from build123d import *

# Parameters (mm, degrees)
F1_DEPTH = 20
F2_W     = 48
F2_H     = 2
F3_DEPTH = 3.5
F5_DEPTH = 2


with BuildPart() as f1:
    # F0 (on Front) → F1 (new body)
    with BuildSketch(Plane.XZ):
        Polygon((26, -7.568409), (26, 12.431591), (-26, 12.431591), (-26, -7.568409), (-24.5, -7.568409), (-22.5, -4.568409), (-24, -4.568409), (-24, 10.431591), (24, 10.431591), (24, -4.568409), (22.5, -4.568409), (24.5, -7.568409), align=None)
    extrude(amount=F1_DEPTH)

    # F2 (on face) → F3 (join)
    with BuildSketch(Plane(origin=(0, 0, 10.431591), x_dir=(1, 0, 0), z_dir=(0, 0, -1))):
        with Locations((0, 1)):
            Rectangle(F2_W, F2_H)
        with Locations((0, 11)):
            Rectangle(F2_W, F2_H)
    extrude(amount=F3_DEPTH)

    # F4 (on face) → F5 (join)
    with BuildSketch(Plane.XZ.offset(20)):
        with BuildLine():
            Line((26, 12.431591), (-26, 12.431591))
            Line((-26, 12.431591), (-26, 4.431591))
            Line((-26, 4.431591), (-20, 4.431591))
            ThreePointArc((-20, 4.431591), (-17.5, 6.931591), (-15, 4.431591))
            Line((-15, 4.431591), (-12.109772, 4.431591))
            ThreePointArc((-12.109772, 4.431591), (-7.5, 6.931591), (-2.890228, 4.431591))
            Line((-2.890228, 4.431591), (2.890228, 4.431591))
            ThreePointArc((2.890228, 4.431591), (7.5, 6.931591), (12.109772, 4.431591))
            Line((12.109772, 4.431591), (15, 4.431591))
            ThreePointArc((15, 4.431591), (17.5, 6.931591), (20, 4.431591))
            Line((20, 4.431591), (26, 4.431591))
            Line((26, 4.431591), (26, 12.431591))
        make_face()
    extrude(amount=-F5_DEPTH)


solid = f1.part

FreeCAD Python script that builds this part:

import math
import FreeCAD as App
import Part
import Sketcher
from FreeCAD import Vector
Q = App.Units.Quantity


def add_polygon(sketch, points):
    """Adds a closed chain of lines whose ends are joined by coincident constraints."""
    first, n = sketch.GeometryCount, len(points)
    for a, b in zip(points, points[1:] + points[:1]):
        sketch.addGeometry(Part.LineSegment(App.Vector(*a, 0), App.Vector(*b, 0)), False)
    for i in range(n):
        sketch.addConstraint(Sketcher.Constraint("Coincident", first + i, 2, first + (i + 1) % n, 1))

doc = App.newDocument("Part")
body = doc.addObject("PartDesign::Body", "Body")

# Sketch on XZ plane
sketch1 = body.newObject("Sketcher::SketchObject", "Sketch")
sketch1.AttachmentSupport = (doc.getObject("XZ_Plane"), [""])
sketch1.MapMode = "FlatFace"
add_polygon(sketch1, [(26, -7.6), (26, 12.4), (-26, 12.4), (-26, -7.6), (-24.5, -7.6), (-22.5, -4.6), (-24, -4.6), (-24, 10.4), (24, 10.4), (24, -4.6), (22.5, -4.6), (24.5, -7.6)])  # lines 0-11
sketch1.addConstraint([
    Sketcher.Constraint("Vertical", 0),
    Sketcher.Constraint("Horizontal", 1),
    Sketcher.Constraint("Vertical", 2),
    Sketcher.Constraint("Horizontal", 3),
    Sketcher.Constraint("Horizontal", 5),
    Sketcher.Constraint("Vertical", 6),
    Sketcher.Constraint("Horizontal", 7),
    Sketcher.Constraint("Vertical", 8),
    Sketcher.Constraint("Horizontal", 9),
    Sketcher.Constraint("Horizontal", 11),
    Sketcher.Constraint("Symmetric", 5, 2, 8, 2, -2),
    Sketcher.Constraint("Symmetric", 3, 2, 10, 2, -2),
    Sketcher.Constraint("Equal", 3, 5),
    Sketcher.Constraint("Equal", 5, 9),
    Sketcher.Constraint("Equal", 9, 11),
    Sketcher.Constraint("DistanceX", 1, 2, 1, 1, Q("52 mm")),
    Sketcher.Constraint("DistanceX", 7, 1, 7, 2, Q("48 mm")),
    Sketcher.Constraint("DistanceY", 0, 1, 0, 2, Q("20 mm")),
    Sketcher.Constraint("DistanceY", 6, 1, 6, 2, Q("15 mm")),
    Sketcher.Constraint("DistanceX", 3, 1, 3, 2, Q("1.5 mm")),
    Sketcher.Constraint("DistanceY", 3, 2, 4, 2, Q("3 mm")),
    Sketcher.Constraint("DistanceY", -1, 1, 0, 2, Q("12.431591 mm")),
])
pad1 = body.newObject("PartDesign::Pad", "Pad")
pad1.Profile = sketch1
pad1.Length = 20

# Sketch on XY plane
sketch2 = body.newObject("Sketcher::SketchObject", "Sketch001")
sketch2.AttachmentSupport = (doc.getObject("XY_Plane"), [""])
sketch2.MapMode = "FlatFace"
sketch2.AttachmentOffset = App.Placement(Vector(0, 0, 10.431591), App.Rotation())
add_polygon(sketch2, [(-24, -2), (-24, 0), (24, 0), (24, -2)])  # lines 0-3
add_polygon(sketch2, [(-24, -12), (-24, -10), (24, -10), (24, -12)])  # lines 4-7
sketch2.addConstraint([
    Sketcher.Constraint("Vertical", 0),
    Sketcher.Constraint("Horizontal", 1),
    Sketcher.Constraint("Vertical", 2),
    Sketcher.Constraint("Horizontal", 3),
    Sketcher.Constraint("Vertical", 4),
    Sketcher.Constraint("Horizontal", 5),
    Sketcher.Constraint("Vertical", 6),
    Sketcher.Constraint("Horizontal", 7),
    Sketcher.Constraint("Symmetric", 0, 2, 1, 2, -1, 1),
    Sketcher.Constraint("Vertical", 3, 2, 4, 2),
    Sketcher.Constraint("Vertical", 2, 2, 5, 2),
    Sketcher.Constraint("Equal", 2, 4),
    Sketcher.Constraint("DistanceX", 1, 1, 1, 2, Q("48 mm")),
    Sketcher.Constraint("DistanceY", 0, 1, 0, 2, Q("2 mm")),
    Sketcher.Constraint("DistanceY", 4, 2, -1, 1, Q("10 mm")),
])
pad2 = body.newObject("PartDesign::Pad", "Pad001")
pad2.Profile = sketch2
pad2.Length = 3.5
pad2.Reversed = True

# Sketch on XZ plane
sketch3 = body.newObject("Sketcher::SketchObject", "Sketch002")
sketch3.AttachmentSupport = (doc.getObject("XZ_Plane"), [""])
sketch3.MapMode = "FlatFace"
sketch3.AttachmentOffset = App.Placement(Vector(0, 0, 20), App.Rotation())
sketch3.addGeometry([
    Part.LineSegment(Vector(26, 12.4, 0), Vector(-26, 12.4, 0)),  # 0
    Part.LineSegment(Vector(-26, 12.4, 0), Vector(-26, 4.4, 0)),  # 1
    Part.LineSegment(Vector(-26, 4.4, 0), Vector(-20, 4.4, 0)),  # 2
    Part.ArcOfCircle(Part.Circle(Vector(-17.5, 4.4, 0), Vector(0, 0, 1), 2.5), math.radians(0), math.radians(180)),  # 3
    Part.LineSegment(Vector(-15, 4.4, 0), Vector(-12.1, 4.4, 0)),  # 4
    Part.ArcOfCircle(Part.Circle(Vector(-7.5, 1.4, 0), Vector(0, 0, 1), 5.5), math.radians(33), math.radians(147)),  # 5
    Part.LineSegment(Vector(-2.9, 4.4, 0), Vector(2.9, 4.4, 0)),  # 6
    Part.ArcOfCircle(Part.Circle(Vector(7.5, 1.4, 0), Vector(0, 0, 1), 5.5), math.radians(33), math.radians(147)),  # 7
    Part.LineSegment(Vector(12.1, 4.4, 0), Vector(15, 4.4, 0)),  # 8
    Part.ArcOfCircle(Part.Circle(Vector(17.5, 4.4, 0), Vector(0, 0, 1), 2.5), math.radians(0), math.radians(180)),  # 9
    Part.LineSegment(Vector(20, 4.4, 0), Vector(26, 4.4, 0)),  # 10
    Part.LineSegment(Vector(26, 4.4, 0), Vector(26, 12.4, 0)),  # 11
], False)
sketch3.addConstraint([
    Sketcher.Constraint("Coincident", 0, 2, 1, 1),
    Sketcher.Constraint("Coincident", 1, 2, 2, 1),
    Sketcher.Constraint("Coincident", 2, 2, 3, 2),
    Sketcher.Constraint("Coincident", 3, 1, 4, 1),
    Sketcher.Constraint("Coincident", 4, 2, 5, 2),
    Sketcher.Constraint("Coincident", 5, 1, 6, 1),
    Sketcher.Constraint("Coincident", 6, 2, 7, 2),
    Sketcher.Constraint("Coincident", 7, 1, 8, 1),
    Sketcher.Constraint("Coincident", 8, 2, 9, 2),
    Sketcher.Constraint("Coincident", 9, 1, 10, 1),
    Sketcher.Constraint("Coincident", 10, 2, 11, 1),
    Sketcher.Constraint("Coincident", 11, 2, 0, 1),
    Sketcher.Constraint("Horizontal", 0),
    Sketcher.Constraint("Vertical", 1),
    Sketcher.Constraint("Horizontal", 2),
    Sketcher.Constraint("Horizontal", 4),
    Sketcher.Constraint("Horizontal", 6),
    Sketcher.Constraint("Horizontal", 8),
    Sketcher.Constraint("Horizontal", 10),
    Sketcher.Constraint("Vertical", 11),
    Sketcher.Constraint("Equal", 5, 7),
    Sketcher.Constraint("Equal", 3, 9),
    Sketcher.Constraint("Symmetric", 5, 3, 7, 3, -2),
    Sketcher.Constraint("Symmetric", 3, 3, 9, 3, -2),
    Sketcher.Constraint("Symmetric", 1, 2, 10, 2, -2),
    Sketcher.Constraint("Horizontal", 9, 3, 1, 2),
    Sketcher.Constraint("Horizontal", 2, 2, 3, 1),
    Sketcher.Constraint("Horizontal", 4, 2, 5, 1),
    Sketcher.Constraint("Horizontal", 6, 2, 7, 1),
    Sketcher.Constraint("Radius", 3, Q("2.5 mm")),
    Sketcher.Constraint("Radius", 5, Q("5.5 mm")),
    Sketcher.Constraint("DistanceX", 0, 2, 0, 1, Q("52 mm")),
    Sketcher.Constraint("DistanceX", 2, 1, 2, 2, Q("6 mm")),
    Sketcher.Constraint("DistanceY", 1, 2, 1, 1, Q("8 mm")),
    Sketcher.Constraint("DistanceX", 3, 3, 5, 3, Q("10 mm")),
    Sketcher.Constraint("DistanceY", 5, 3, 3, 3, Q("3 mm")),
    Sketcher.Constraint("DistanceY", -1, 1, 3, 3, Q("4.431591 mm")),
])
pad3 = body.newObject("PartDesign::Pad", "Pad002")
pad3.Profile = sketch3
pad3.Length = 2
pad3.Reversed = True

doc.recompute()
